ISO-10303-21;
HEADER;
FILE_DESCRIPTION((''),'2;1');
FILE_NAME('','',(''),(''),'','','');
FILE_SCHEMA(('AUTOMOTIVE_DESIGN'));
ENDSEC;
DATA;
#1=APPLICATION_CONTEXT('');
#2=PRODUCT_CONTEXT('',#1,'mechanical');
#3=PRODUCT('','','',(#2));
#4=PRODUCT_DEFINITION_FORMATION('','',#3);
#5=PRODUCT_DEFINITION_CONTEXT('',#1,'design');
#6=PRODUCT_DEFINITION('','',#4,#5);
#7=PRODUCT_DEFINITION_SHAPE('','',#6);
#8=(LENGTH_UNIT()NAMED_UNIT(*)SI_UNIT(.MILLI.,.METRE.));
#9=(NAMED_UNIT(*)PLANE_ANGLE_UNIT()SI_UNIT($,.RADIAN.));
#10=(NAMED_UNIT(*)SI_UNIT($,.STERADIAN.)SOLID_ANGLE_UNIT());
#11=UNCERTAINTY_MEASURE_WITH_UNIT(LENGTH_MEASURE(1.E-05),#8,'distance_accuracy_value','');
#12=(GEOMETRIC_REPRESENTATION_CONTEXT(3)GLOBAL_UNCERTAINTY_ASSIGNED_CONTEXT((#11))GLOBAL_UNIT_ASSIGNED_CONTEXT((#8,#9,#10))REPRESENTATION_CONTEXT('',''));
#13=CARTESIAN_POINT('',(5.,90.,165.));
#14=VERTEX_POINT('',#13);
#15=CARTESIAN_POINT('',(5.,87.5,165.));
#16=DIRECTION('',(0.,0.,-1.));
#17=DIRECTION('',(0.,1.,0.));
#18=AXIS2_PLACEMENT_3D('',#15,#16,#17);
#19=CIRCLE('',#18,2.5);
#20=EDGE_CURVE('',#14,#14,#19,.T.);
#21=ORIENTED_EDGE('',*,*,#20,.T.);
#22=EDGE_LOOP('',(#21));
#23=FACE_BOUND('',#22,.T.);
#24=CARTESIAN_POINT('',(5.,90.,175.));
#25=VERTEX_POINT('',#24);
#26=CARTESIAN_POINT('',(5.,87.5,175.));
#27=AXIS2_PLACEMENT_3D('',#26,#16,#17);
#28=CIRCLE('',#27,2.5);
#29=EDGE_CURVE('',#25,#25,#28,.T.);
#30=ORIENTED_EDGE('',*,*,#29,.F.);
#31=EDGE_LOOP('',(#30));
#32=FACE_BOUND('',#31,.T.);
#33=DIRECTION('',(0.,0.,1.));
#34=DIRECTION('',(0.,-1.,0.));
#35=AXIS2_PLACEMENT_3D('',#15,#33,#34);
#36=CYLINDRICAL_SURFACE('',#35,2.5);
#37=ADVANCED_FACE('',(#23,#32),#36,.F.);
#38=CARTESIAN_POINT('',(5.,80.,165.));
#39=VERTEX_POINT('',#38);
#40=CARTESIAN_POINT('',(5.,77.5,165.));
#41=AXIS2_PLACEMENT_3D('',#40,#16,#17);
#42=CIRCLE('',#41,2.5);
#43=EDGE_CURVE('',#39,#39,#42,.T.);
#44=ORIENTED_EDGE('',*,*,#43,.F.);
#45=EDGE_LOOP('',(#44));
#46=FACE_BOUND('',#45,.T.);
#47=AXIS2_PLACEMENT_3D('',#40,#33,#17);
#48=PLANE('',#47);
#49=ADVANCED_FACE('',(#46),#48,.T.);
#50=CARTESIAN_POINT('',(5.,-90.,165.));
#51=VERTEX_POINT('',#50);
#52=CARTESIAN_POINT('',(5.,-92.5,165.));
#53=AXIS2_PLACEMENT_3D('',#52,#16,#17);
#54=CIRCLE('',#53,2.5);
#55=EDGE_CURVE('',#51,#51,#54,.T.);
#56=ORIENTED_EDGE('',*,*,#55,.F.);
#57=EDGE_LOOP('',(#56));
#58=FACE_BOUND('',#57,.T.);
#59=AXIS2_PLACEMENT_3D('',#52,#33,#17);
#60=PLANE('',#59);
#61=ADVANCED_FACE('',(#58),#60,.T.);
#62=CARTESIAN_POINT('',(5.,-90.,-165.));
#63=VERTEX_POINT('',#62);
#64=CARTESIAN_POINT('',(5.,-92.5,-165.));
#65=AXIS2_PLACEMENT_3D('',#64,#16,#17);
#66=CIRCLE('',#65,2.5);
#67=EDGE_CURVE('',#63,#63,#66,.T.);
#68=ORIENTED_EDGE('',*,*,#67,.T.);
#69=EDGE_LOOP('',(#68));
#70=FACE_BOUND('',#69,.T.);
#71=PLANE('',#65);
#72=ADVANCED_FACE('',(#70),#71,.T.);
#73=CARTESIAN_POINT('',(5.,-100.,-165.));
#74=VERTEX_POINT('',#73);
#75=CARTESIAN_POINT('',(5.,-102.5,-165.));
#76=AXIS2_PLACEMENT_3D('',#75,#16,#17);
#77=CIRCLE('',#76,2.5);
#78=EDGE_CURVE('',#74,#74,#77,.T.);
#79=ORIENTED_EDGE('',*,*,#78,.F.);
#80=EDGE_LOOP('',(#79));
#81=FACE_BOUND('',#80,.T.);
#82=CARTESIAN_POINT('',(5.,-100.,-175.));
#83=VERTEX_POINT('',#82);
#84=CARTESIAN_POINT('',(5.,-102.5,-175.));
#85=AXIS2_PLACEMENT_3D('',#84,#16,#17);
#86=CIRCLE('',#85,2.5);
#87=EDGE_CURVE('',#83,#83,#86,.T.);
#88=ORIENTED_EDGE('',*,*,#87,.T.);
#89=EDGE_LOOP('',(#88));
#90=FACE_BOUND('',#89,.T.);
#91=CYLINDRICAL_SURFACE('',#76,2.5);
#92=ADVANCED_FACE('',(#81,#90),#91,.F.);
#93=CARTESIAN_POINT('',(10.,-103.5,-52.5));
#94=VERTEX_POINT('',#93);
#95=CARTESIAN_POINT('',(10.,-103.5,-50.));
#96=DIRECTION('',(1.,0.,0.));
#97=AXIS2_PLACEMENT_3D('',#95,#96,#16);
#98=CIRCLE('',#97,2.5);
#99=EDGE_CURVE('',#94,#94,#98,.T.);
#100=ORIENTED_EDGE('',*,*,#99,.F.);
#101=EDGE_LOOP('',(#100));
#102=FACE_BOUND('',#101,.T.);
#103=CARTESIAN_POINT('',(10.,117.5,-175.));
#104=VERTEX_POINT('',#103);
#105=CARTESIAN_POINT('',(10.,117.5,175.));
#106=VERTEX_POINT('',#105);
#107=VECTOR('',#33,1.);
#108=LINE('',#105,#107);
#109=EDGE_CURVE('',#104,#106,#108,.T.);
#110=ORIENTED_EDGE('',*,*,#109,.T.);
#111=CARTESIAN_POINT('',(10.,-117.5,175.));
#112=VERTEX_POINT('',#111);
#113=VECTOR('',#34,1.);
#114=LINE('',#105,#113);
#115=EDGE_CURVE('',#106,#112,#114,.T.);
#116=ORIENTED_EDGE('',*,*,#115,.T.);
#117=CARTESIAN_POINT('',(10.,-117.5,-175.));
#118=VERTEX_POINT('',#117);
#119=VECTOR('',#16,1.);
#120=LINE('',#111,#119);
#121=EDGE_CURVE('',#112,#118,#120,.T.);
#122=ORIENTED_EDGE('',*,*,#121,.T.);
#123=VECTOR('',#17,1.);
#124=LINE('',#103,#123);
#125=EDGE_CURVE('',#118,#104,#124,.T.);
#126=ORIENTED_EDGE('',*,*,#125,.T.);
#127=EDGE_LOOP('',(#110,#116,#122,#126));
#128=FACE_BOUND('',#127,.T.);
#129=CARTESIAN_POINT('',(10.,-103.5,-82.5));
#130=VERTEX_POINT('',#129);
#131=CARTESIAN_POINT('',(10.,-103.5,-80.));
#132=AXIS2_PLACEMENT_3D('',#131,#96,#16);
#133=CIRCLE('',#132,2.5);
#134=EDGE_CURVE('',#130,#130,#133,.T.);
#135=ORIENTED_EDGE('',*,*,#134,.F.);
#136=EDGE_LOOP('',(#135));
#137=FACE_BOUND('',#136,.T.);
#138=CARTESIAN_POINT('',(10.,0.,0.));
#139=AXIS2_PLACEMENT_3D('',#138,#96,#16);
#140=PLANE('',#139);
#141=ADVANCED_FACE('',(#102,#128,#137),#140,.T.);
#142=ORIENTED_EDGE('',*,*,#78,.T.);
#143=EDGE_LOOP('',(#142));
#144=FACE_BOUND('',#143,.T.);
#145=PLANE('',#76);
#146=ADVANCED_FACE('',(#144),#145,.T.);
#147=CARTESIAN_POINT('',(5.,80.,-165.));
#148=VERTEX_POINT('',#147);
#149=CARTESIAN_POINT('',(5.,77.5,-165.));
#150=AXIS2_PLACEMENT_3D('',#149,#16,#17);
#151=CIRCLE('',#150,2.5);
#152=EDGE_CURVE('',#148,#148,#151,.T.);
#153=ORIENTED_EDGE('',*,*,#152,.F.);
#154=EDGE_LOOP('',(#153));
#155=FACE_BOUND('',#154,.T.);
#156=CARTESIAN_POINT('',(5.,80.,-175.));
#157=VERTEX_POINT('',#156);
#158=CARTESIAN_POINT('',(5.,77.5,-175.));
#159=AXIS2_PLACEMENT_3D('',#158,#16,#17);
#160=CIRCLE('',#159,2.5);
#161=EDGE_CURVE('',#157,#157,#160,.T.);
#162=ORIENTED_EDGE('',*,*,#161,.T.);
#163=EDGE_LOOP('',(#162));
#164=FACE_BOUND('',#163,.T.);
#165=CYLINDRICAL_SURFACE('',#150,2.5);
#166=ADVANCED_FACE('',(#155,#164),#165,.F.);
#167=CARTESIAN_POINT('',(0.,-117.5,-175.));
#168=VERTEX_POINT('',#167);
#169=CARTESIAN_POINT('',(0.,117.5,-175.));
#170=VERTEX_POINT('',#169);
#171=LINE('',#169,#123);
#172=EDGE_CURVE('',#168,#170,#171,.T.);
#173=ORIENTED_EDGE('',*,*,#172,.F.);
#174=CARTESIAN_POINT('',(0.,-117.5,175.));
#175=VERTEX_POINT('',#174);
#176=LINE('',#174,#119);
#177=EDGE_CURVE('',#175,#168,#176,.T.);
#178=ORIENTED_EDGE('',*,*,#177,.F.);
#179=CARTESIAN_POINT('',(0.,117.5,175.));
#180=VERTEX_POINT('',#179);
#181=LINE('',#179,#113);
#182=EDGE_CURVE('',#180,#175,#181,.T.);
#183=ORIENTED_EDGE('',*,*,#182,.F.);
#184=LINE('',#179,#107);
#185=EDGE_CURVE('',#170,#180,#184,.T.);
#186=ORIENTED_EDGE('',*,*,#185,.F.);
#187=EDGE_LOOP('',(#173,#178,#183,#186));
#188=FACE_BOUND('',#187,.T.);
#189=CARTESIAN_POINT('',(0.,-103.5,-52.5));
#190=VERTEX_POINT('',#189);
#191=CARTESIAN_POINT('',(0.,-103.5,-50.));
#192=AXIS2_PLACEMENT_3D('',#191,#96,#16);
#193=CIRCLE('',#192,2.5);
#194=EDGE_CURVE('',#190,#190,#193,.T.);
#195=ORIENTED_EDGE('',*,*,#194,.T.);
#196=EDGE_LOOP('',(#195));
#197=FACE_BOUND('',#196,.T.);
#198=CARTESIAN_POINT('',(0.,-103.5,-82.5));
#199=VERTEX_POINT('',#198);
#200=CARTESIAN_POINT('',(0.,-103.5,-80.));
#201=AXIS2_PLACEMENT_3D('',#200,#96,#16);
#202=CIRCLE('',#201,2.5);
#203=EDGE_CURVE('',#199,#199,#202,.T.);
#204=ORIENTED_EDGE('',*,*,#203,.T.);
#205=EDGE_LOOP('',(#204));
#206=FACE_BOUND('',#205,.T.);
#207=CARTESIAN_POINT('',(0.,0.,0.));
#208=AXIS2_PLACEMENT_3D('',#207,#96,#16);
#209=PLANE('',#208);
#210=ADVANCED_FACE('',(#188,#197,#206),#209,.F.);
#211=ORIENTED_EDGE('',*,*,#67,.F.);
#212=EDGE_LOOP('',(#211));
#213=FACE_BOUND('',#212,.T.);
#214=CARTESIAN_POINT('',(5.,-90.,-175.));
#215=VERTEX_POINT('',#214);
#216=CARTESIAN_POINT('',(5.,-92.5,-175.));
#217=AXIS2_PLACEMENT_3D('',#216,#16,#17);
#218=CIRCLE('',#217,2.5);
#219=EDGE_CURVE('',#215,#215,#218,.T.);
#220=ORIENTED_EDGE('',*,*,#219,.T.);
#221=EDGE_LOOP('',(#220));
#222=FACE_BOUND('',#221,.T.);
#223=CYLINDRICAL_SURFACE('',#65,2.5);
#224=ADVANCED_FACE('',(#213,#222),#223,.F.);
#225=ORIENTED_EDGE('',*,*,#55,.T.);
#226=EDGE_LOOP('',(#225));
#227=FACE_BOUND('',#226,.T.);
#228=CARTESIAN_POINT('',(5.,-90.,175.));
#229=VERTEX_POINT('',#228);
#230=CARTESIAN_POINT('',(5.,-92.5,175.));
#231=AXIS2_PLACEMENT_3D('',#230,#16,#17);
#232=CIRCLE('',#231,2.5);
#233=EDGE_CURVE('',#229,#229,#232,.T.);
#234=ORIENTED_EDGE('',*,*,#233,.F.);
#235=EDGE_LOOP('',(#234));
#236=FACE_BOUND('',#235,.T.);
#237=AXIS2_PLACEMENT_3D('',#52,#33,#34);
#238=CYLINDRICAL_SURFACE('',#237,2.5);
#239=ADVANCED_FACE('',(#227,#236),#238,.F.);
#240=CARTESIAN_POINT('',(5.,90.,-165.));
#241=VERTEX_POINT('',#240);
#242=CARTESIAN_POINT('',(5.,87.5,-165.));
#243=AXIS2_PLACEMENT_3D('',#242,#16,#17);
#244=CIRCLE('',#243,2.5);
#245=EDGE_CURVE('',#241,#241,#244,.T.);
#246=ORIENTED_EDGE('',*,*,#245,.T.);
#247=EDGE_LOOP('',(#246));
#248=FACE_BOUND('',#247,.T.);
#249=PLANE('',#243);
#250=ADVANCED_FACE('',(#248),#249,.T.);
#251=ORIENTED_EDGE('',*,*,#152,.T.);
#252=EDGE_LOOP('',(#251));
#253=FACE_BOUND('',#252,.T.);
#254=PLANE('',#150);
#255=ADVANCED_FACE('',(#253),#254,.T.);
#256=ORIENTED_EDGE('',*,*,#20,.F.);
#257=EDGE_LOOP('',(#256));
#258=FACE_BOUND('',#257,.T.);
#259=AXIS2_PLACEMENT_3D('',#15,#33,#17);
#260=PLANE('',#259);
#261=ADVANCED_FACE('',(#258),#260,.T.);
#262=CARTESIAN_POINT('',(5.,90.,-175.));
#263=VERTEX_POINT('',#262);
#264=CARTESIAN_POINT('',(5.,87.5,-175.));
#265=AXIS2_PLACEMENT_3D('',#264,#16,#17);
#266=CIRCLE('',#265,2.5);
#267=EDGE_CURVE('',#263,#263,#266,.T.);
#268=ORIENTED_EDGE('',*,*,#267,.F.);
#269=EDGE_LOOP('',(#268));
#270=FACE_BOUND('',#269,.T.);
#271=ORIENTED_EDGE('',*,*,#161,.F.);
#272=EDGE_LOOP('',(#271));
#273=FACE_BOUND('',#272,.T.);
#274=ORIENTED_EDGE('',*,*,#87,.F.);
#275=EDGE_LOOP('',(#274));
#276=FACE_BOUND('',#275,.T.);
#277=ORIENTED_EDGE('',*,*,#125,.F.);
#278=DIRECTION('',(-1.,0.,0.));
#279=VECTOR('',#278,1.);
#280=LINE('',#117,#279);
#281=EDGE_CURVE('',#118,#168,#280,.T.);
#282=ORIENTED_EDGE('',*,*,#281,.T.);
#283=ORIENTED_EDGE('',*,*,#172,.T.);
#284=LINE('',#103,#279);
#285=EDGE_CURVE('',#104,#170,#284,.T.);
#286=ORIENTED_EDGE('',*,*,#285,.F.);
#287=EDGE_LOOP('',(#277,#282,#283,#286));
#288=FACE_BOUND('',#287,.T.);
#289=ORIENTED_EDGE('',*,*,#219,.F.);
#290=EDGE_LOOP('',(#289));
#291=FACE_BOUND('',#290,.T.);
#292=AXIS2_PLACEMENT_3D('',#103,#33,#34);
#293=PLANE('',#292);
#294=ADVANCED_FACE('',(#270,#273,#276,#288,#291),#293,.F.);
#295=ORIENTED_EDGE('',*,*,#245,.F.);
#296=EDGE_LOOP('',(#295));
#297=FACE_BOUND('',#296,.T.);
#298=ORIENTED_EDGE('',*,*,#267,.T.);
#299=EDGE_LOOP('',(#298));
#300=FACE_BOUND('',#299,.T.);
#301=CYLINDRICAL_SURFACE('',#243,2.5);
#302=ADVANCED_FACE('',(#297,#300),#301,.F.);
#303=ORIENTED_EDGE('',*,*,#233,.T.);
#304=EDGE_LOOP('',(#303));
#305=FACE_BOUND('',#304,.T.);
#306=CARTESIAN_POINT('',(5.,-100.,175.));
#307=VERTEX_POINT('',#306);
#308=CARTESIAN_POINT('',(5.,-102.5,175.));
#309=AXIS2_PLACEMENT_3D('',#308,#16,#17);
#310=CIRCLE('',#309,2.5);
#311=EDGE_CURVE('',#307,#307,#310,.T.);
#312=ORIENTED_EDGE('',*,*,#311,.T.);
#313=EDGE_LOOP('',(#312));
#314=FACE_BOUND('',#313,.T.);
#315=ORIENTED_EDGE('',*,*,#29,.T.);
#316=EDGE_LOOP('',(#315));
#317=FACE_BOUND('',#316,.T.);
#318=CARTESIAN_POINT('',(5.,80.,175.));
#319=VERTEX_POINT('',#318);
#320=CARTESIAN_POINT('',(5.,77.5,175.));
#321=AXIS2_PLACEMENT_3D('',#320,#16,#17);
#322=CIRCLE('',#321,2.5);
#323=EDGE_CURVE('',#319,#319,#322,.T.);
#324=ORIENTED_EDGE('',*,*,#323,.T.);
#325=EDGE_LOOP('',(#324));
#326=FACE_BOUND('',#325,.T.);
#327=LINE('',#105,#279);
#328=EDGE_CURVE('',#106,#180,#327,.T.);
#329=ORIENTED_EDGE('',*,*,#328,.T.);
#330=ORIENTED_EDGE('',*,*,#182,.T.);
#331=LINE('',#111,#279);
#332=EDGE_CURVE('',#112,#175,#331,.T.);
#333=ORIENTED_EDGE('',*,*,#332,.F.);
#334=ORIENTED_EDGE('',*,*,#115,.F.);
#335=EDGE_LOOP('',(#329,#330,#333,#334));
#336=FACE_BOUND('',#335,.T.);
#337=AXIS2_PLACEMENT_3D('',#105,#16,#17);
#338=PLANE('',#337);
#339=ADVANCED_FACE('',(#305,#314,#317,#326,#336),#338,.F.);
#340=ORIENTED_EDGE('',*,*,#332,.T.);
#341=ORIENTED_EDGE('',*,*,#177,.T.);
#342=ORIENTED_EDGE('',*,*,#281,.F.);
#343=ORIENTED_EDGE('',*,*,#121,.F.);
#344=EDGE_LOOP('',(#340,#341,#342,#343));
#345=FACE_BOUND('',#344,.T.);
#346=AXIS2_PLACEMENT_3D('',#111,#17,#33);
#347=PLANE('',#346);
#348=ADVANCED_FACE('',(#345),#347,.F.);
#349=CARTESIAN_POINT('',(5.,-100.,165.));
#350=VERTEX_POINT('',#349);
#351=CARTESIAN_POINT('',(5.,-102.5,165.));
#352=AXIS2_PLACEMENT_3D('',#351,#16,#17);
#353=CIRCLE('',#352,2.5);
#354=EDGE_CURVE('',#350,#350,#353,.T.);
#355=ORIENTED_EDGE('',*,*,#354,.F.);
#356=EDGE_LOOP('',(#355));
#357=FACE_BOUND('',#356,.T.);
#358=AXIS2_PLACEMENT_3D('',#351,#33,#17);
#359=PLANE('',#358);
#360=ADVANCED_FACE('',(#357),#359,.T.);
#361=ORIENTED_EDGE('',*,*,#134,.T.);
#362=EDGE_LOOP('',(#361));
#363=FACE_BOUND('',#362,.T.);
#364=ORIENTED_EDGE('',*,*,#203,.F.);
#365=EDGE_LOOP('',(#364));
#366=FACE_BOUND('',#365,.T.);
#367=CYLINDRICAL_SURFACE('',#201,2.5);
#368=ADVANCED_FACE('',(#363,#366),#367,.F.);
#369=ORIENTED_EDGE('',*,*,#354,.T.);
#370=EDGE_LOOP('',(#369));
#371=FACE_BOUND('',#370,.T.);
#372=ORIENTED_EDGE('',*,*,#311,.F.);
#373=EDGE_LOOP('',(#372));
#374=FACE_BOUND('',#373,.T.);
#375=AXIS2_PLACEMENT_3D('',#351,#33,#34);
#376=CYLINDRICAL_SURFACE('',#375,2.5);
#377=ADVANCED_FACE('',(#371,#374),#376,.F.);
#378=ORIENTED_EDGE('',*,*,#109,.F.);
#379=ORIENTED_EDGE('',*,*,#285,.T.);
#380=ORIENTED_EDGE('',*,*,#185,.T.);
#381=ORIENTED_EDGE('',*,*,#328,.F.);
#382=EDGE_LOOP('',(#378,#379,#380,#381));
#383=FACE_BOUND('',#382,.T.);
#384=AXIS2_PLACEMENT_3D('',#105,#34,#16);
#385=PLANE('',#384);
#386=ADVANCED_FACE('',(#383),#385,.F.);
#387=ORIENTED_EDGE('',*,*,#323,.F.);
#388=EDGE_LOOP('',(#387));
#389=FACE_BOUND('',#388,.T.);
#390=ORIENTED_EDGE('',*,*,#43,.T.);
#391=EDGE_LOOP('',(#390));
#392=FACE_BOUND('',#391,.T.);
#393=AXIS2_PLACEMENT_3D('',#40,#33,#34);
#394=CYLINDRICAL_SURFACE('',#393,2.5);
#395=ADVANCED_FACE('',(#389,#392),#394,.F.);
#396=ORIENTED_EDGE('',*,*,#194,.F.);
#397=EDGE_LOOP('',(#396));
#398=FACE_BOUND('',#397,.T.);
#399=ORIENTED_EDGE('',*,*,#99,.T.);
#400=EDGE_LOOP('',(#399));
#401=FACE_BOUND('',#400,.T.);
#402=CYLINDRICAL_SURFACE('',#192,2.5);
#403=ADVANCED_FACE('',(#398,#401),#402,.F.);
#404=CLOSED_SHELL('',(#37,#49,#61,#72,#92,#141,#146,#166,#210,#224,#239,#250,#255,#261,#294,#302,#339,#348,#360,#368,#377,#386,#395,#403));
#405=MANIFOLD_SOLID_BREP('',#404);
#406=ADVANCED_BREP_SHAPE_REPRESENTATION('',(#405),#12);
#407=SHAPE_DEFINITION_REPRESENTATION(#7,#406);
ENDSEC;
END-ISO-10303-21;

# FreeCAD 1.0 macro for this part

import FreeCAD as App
import Part
import Sketcher

V = App.Vector
Q = App.Units.Quantity


def add_polygon(sketch, points):
    """Adds a closed chain of lines whose ends are joined by coincident constraints."""
    first, n = sketch.GeometryCount, len(points)
    for a, b in zip(points, points[1:] + points[:1]):
        sketch.addGeometry(Part.LineSegment(App.Vector(*a, 0), App.Vector(*b, 0)), False)
    for i in range(n):
        sketch.addConstraint(Sketcher.Constraint("Coincident", first + i, 2, first + (i + 1) % n, 1))

doc = App.newDocument("Part")
params = doc.addObject("Spreadsheet::Sheet", "Params")
for row, (alias, value) in enumerate([
    ("sketch1_width", "235 mm"),
    ("sketch1_height", "350 mm"),
    ("pad1_length", "10 mm"),
    ("sketch2_diameter", "5 mm"),
    ("sketch3_diameter", "5 mm"),
    ("pocket2_length", "10 mm"),
], start=1):
    params.set(f"A{row}", alias)
    params.set(f"B{row}", "=" + value)
    params.setAlias(f"B{row}", alias)

body = doc.addObject("PartDesign::Body", "Body")

# Sketch on YZ plane
sketch1 = body.newObject("Sketcher::SketchObject", "Sketch")
sketch1.AttachmentSupport = (doc.getObject("YZ_Plane"), [""])
sketch1.MapMode = "FlatFace"
add_polygon(sketch1, [(118, 175), (-118, 175), (-118, -175), (118, -175)])  # lines 0-3
sketch1.addConstraint(Sketcher.Constraint("Horizontal", 0))
sketch1.addConstraint(Sketcher.Constraint("Vertical", 1))
sketch1.addConstraint(Sketcher.Constraint("Horizontal", 2))
sketch1.addConstraint(Sketcher.Constraint("Vertical", 3))
sketch1.addConstraint(Sketcher.Constraint("Symmetric", 0, 2, 2, 2, -1, 1))
sketch1.addConstraint(Sketcher.Constraint("DistanceX", 0, 2, 0, 1, Q("235 mm")))
sketch1.addConstraint(Sketcher.Constraint("DistanceY", 1, 2, 1, 1, Q("350 mm")))
sketch1.setExpression("Constraints[9]", "Params.sketch1_width")
sketch1.setExpression("Constraints[10]", "Params.sketch1_height")
pad1 = body.newObject("PartDesign::Pad", "Pad")
pad1.Profile = sketch1
pad1.setExpression("Length", "Params.pad1_length")

# Sketch on YZ plane
sketch2 = body.newObject("Sketcher::SketchObject", "Sketch001")
sketch2.AttachmentSupport = (doc.getObject("YZ_Plane"), [""])
sketch2.MapMode = "FlatFace"
sketch2.AttachmentOffset = App.Placement(V(0, 0, 10), App.Rotation())
sketch2.addGeometry(Part.Circle(V(-103.5, -50, 0), V(0, 0, 1), 2.5), False)
sketch2.addGeometry(Part.Circle(V(-103.5, -80, 0), V(0, 0, 1), 2.5), False)
sketch2.addConstraint(Sketcher.Constraint("Equal", 0, 1))
sketch2.addConstraint(Sketcher.Constraint("Vertical", 0, 3, 1, 3))
sketch2.addConstraint(Sketcher.Constraint("Diameter", 0, Q("5 mm")))
sketch2.addConstraint(Sketcher.Constraint("DistanceY", 0, 3, -1, 1, Q("50 mm")))
sketch2.addConstraint(Sketcher.Constraint("DistanceY", 1, 3, -1, 1, Q("80 mm")))
sketch2.addConstraint(Sketcher.Constraint("DistanceX", 0, 3, -1, 1, Q("103.5 mm")))
sketch2.setExpression("Constraints[2]", "Params.sketch2_diameter")
pocket1 = body.newObject("PartDesign::Pocket", "Pocket")
pocket1.Profile = sketch2
pocket1.Type = "ThroughAll"

# Sketch on XY plane
sketch3 = body.newObject("Sketcher::SketchObject", "Sketch002")
sketch3.AttachmentSupport = (doc.getObject("XY_Plane"), [""])
sketch3.MapMode = "FlatFace"
sketch3.AttachmentOffset = App.Placement(V(0, 0, -175), App.Rotation())
sketch3.addGeometry(Part.Circle(V(5, 87.5, 0), V(0, 0, 1), 2.5), False)
sketch3.addGeometry(Part.Circle(V(5, 77.5, 0), V(0, 0, 1), 2.5), False)
sketch3.addGeometry(Part.Circle(V(5, -92.5, 0), V(0, 0, 1), 2.5), False)
sketch3.addGeometry(Part.Circle(V(5, -102.5, 0), V(0, 0, 1), 2.5), False)
sketch3.addConstraint(Sketcher.Constraint("Equal", 0, 1))
sketch3.addConstraint(Sketcher.Constraint("Equal", 1, 2))
sketch3.addConstraint(Sketcher.Constraint("Equal", 2, 3))
sketch3.addConstraint(Sketcher.Constraint("Vertical", 0, 3, 1, 3))
sketch3.addConstraint(Sketcher.Constraint("Vertical", 1, 3, 2, 3))
sketch3.addConstraint(Sketcher.Constraint("Vertical", 2, 3, 3, 3))
sketch3.addConstraint(Sketcher.Constraint("Diameter", 0, Q("5 mm")))
sketch3.addConstraint(Sketcher.Constraint("DistanceX", -1, 1, 0, 3, Q("5 mm")))
sketch3.addConstraint(Sketcher.Constraint("DistanceY", 1, 3, 0, 3, Q("10 mm")))
sketch3.addConstraint(Sketcher.Constraint("DistanceY", 2, 3, 1, 3, Q("170 mm")))
sketch3.addConstraint(Sketcher.Constraint("DistanceY", 3, 3, 2, 3, Q("10 mm")))
sketch3.addConstraint(Sketcher.Constraint("DistanceY", -1, 1, 0, 3, Q("87.5 mm")))
sketch3.setExpression("Constraints[6]", "Params.sketch3_diameter")
pocket2 = body.newObject("PartDesign::Pocket", "Pocket001")
pocket2.Profile = sketch3
pocket2.setExpression("Length", "Params.pocket2_length")
pocket2.Reversed = True
doc.recompute()

mirrored = body.newObject("PartDesign::Mirrored", "Mirrored")
mirrored.Originals = [pocket2]
mirrored.MirrorPlane = (doc.getObject("XY_Plane"), [""])
body.Tip = mirrored

doc.recompute()
